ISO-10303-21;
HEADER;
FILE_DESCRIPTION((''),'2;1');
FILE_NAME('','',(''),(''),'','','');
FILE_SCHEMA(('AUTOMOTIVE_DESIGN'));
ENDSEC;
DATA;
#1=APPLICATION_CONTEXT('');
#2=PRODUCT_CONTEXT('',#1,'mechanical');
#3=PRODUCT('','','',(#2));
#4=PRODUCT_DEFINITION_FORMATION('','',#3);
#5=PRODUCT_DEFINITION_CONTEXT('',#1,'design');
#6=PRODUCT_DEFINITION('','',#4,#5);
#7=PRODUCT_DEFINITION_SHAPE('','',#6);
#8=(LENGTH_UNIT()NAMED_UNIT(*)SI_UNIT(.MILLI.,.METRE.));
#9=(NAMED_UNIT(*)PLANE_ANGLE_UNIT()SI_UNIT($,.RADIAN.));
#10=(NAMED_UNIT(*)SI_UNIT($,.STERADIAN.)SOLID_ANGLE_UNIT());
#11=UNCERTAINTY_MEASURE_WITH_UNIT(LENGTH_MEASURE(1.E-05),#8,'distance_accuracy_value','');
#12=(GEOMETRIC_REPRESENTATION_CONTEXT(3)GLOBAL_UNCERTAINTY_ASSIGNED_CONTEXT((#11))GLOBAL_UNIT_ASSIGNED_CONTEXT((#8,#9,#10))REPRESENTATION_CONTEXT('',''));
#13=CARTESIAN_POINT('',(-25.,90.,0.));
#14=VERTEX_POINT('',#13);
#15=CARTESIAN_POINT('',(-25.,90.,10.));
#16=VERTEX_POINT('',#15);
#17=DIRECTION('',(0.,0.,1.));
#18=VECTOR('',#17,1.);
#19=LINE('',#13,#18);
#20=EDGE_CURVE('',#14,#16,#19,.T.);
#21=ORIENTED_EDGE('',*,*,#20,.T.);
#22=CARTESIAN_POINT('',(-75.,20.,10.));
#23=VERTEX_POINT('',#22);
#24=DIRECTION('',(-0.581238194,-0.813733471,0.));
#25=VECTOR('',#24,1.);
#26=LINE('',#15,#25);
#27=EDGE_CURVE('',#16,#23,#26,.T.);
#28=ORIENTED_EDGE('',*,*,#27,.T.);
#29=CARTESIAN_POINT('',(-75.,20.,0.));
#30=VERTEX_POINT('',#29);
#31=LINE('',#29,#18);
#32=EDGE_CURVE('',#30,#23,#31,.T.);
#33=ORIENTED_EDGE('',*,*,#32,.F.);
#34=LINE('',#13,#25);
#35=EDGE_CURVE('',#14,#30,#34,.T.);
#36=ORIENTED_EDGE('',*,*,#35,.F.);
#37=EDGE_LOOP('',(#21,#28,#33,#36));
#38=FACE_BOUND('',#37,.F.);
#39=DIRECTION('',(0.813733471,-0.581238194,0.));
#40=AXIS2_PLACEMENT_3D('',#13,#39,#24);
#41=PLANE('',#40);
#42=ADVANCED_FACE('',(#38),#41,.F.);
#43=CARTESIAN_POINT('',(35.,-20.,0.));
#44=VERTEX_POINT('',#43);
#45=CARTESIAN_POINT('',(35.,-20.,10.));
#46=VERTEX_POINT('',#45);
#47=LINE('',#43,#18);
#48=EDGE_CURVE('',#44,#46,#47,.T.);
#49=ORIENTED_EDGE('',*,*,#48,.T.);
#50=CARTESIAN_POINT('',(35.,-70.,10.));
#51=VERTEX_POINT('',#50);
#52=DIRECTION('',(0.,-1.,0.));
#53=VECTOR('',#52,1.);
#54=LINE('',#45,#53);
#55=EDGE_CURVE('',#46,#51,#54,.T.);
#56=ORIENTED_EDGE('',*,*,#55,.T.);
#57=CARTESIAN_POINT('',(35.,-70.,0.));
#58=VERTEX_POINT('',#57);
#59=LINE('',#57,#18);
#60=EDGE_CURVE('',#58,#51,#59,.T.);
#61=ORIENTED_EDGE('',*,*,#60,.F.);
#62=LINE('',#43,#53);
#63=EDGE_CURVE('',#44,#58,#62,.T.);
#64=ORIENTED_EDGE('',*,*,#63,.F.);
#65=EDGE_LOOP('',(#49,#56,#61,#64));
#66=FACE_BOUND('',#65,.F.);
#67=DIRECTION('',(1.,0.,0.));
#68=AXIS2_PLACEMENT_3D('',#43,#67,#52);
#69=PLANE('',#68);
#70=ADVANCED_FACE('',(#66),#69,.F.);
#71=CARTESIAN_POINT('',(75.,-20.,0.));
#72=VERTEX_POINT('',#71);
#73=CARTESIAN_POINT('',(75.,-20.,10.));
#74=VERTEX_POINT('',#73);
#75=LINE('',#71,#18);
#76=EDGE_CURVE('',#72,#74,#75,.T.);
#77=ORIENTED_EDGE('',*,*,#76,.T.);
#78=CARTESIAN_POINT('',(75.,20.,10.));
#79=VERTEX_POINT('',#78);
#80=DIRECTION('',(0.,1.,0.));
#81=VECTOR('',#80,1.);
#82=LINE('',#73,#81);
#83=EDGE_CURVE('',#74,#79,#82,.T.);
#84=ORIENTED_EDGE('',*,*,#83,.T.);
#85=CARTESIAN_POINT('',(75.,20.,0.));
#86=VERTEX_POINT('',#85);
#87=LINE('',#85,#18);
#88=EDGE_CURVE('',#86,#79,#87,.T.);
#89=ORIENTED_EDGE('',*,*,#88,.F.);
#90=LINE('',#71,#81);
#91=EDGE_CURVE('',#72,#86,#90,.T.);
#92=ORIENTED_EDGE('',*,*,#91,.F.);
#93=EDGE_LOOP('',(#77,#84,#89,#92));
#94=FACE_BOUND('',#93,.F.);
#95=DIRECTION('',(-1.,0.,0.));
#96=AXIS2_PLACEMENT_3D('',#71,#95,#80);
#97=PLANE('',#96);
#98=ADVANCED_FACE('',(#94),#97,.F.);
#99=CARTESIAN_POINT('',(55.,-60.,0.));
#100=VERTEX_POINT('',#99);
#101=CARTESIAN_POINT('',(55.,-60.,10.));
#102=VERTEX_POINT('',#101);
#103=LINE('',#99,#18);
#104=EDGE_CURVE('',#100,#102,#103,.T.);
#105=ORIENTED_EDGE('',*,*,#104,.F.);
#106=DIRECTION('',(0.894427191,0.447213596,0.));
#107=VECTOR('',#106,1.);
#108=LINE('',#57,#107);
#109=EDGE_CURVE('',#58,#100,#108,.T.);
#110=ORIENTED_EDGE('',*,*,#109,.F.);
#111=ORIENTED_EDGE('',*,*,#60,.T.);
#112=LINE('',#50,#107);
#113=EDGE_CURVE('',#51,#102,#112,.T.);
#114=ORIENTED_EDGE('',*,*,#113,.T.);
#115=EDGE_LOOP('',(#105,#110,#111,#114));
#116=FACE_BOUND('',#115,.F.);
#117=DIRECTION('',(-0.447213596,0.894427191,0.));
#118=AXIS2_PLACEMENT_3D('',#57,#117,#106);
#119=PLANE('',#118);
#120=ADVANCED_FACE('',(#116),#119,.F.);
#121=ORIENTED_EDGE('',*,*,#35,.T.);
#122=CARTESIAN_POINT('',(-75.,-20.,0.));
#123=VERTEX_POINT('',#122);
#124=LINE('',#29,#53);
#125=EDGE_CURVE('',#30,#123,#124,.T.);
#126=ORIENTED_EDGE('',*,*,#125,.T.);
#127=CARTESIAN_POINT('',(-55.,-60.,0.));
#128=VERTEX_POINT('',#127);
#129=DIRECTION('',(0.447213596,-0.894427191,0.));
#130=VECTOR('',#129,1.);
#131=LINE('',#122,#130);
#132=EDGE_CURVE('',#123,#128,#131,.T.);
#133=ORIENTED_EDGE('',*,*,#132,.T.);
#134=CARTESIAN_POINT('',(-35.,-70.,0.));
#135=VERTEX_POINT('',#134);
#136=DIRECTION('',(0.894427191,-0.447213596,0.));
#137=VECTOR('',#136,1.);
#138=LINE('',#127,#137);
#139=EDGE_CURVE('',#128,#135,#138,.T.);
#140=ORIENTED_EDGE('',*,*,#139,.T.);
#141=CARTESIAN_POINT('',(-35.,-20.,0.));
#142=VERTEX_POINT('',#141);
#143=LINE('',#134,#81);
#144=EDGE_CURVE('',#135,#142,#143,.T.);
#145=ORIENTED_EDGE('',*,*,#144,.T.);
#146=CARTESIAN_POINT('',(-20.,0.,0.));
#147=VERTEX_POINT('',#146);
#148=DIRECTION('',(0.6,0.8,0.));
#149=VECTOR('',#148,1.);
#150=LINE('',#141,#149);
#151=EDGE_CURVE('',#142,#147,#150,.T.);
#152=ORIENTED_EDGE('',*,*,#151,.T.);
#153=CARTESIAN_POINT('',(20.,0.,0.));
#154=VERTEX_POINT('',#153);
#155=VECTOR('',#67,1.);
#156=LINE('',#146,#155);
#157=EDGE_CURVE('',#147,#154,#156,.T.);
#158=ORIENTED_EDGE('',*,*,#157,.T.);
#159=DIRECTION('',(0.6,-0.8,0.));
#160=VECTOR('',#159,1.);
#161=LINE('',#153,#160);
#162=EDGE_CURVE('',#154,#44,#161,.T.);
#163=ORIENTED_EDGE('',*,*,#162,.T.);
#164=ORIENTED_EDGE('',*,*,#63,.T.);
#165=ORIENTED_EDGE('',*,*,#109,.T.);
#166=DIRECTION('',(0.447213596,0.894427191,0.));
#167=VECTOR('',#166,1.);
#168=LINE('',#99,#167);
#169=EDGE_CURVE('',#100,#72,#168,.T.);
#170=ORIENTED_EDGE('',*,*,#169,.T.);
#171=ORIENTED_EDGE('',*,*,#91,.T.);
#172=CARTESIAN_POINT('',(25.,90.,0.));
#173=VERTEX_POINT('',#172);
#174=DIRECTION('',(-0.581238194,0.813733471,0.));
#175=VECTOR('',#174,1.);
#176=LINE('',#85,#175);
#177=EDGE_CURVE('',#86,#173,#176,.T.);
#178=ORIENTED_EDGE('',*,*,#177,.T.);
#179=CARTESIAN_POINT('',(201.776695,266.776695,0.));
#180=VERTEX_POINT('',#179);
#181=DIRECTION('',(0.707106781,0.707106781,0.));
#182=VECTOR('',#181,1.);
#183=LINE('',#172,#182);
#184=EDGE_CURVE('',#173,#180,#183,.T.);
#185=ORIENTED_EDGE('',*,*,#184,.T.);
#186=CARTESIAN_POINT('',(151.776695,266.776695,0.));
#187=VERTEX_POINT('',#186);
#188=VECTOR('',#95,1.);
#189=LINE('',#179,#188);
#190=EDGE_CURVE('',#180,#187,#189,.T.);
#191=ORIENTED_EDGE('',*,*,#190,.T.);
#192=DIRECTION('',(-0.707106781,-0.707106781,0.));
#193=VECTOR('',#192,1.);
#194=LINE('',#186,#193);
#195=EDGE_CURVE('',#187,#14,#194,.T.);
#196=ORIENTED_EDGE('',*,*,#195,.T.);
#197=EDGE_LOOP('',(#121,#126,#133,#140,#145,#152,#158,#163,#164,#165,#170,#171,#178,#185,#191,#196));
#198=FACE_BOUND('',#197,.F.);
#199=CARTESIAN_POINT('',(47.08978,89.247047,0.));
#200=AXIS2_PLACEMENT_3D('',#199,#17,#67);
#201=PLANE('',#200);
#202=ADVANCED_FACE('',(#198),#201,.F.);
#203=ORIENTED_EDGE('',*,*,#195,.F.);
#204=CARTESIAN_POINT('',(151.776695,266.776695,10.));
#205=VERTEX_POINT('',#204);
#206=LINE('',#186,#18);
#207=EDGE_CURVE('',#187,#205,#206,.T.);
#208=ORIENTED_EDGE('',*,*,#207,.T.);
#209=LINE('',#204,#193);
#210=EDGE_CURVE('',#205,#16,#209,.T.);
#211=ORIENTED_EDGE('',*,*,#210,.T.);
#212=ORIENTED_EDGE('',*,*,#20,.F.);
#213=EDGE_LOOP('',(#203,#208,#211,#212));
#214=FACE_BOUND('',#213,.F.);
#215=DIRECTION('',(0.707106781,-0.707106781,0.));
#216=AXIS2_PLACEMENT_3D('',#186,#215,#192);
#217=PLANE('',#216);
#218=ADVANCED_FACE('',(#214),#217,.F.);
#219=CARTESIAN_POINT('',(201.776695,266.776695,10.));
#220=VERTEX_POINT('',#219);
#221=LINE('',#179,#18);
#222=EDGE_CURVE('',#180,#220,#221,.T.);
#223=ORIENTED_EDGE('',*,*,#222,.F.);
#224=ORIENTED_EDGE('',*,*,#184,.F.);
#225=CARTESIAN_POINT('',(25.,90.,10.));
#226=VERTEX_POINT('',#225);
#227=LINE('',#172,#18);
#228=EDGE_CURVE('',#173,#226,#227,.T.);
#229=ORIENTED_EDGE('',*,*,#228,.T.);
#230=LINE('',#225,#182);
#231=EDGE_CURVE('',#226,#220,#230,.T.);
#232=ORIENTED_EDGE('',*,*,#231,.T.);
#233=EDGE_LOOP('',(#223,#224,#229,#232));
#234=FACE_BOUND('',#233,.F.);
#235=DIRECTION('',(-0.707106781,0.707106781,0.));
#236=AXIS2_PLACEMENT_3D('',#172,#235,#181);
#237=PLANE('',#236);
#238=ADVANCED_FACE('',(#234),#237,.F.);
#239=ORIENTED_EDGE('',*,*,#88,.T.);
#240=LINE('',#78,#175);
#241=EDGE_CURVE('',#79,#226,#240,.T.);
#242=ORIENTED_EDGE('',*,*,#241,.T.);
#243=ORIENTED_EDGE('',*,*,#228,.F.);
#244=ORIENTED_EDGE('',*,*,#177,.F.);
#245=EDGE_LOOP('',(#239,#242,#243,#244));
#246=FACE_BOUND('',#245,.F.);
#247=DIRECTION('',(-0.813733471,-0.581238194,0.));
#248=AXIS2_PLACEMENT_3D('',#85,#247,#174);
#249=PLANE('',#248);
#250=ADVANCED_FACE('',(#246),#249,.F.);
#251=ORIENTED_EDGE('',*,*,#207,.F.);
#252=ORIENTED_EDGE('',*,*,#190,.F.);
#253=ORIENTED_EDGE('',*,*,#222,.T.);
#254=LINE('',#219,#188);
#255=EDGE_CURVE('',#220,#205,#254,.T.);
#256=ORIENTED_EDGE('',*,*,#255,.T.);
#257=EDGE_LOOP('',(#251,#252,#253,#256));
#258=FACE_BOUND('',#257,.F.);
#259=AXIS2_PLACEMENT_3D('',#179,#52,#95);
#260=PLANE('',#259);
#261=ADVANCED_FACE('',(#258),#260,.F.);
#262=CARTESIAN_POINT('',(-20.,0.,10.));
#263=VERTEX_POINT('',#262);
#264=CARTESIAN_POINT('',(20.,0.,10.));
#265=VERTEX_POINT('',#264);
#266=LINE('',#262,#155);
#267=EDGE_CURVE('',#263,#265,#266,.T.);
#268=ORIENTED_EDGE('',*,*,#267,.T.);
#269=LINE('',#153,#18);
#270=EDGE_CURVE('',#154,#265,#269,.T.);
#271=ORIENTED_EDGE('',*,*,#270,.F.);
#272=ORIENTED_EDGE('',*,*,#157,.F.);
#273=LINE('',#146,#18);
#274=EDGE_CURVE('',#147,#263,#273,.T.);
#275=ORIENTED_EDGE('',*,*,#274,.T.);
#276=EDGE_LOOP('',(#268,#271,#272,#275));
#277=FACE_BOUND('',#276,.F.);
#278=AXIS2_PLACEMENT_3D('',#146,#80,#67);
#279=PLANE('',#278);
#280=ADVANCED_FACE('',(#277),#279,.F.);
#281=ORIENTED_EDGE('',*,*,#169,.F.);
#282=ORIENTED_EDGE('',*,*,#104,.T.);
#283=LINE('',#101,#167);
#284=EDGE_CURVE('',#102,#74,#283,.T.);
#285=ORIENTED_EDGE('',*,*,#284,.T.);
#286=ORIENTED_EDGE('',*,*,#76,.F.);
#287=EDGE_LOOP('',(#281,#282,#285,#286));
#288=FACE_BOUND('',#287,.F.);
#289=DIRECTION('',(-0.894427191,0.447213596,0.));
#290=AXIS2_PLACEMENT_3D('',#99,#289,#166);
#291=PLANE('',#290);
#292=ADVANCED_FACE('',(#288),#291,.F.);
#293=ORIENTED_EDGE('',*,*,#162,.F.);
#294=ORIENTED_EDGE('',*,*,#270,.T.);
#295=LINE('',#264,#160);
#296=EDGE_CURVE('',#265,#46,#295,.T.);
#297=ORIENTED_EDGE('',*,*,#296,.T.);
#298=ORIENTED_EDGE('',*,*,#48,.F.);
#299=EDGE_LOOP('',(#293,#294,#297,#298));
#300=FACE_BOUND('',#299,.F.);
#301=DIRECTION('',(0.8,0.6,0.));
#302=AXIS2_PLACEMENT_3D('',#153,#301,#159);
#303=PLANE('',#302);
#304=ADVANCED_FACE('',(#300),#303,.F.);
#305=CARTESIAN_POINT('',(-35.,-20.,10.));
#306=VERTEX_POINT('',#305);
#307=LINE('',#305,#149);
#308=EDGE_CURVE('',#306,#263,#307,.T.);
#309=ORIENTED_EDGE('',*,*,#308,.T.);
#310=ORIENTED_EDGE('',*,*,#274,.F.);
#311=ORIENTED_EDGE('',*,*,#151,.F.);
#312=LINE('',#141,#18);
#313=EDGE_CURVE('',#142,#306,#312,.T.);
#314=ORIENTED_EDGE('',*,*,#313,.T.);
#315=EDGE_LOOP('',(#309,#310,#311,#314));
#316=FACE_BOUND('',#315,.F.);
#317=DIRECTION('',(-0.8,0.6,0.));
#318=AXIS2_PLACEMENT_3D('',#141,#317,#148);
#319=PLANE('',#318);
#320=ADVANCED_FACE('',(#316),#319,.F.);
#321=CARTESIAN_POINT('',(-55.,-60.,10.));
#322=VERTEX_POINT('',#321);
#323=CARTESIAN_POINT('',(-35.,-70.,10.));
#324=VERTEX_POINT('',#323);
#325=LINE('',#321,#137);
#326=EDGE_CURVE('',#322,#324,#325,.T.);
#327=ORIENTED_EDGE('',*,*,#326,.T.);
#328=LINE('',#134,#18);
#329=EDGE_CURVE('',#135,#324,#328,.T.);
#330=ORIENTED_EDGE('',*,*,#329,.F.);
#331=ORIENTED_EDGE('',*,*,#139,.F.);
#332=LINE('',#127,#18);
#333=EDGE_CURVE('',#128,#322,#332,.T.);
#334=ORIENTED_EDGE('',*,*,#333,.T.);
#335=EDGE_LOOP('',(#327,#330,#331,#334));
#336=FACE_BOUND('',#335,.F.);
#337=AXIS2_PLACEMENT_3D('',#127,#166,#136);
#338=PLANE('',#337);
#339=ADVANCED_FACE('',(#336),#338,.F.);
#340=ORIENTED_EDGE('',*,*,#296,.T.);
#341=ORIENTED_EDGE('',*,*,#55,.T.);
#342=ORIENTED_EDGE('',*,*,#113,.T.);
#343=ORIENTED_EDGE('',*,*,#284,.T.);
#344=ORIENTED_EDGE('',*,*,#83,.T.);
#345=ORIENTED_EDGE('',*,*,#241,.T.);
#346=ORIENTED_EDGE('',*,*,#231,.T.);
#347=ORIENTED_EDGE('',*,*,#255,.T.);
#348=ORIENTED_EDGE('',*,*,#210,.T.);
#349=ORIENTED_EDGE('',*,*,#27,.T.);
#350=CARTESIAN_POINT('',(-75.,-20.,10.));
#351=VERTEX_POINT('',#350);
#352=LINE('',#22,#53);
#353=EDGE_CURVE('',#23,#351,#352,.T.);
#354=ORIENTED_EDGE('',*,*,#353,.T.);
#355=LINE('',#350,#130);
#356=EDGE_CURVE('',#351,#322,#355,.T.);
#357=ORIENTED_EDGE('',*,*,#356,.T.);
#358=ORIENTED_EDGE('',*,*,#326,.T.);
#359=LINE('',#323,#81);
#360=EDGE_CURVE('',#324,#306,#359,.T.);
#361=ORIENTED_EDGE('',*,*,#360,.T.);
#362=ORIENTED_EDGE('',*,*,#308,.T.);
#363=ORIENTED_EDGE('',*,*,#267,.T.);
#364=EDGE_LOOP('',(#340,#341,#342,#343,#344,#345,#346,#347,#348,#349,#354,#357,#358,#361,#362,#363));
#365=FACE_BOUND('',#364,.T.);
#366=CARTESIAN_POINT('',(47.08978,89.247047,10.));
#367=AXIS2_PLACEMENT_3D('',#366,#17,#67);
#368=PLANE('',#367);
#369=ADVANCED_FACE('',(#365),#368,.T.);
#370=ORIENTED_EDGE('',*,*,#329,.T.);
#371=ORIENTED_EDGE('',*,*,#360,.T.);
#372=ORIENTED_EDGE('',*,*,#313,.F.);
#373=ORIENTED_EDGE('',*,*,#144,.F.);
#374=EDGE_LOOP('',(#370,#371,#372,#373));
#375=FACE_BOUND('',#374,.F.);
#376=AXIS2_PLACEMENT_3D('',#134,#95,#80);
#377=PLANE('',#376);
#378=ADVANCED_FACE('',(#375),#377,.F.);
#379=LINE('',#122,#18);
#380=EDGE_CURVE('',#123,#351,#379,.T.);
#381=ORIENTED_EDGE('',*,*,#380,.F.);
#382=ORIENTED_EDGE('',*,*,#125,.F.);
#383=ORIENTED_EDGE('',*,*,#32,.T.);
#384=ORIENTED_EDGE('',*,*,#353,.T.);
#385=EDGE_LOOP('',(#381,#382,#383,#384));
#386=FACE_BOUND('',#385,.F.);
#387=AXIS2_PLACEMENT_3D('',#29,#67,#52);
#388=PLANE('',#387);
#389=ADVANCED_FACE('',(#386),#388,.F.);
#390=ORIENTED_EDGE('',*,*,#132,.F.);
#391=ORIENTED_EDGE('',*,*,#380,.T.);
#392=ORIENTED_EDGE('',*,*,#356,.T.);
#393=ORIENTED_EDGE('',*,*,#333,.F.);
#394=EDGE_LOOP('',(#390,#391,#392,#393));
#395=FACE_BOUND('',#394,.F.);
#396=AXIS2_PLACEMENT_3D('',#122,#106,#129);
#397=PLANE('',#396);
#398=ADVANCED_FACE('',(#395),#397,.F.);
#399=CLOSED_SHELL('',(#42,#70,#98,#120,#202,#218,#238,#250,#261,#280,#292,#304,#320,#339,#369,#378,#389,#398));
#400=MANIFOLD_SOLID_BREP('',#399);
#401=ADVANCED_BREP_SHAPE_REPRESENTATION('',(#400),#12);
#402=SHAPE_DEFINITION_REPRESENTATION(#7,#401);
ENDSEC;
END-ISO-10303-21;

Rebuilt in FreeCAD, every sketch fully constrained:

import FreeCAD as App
import Part
import Sketcher
from FreeCAD import Vector
Q = App.Units.Quantity


def add_polygon(sketch, points):
    """Adds a closed chain of lines whose ends are joined by coincident constraints."""
    first, n = sketch.GeometryCount, len(points)
    for a, b in zip(points, points[1:] + points[:1]):
        sketch.addGeometry(Part.LineSegment(App.Vector(*a, 0), App.Vector(*b, 0)), False)
    for i in range(n):
        sketch.addConstraint(Sketcher.Constraint("Coincident", first + i, 2, first + (i + 1) % n, 1))

doc = App.newDocument("Part")
params = doc.addObject("Spreadsheet::Sheet", "Params")
for row, (alias, value) in enumerate([
    ("sketch1_width", "40 mm"),
    ("sketch1_width2", "50 mm"),
    ("sketch1_length", "25 mm"),
    ("sketch1_length2", "250 mm"),
    ("pad1_length", "10 mm"),
], start=1):
    params.set(f"A{row}", alias)
    params.set(f"B{row}", "=" + value)
    params.setAlias(f"B{row}", alias)

body = doc.addObject("PartDesign::Body", "Body")

# Sketch on XY plane
sketch1 = body.newObject("Sketcher::SketchObject", "Sketch")
sketch1.AttachmentSupport = (doc.getObject("XY_Plane"), [""])
sketch1.MapMode = "FlatFace"
add_polygon(sketch1, [(-35, -20), (-20, 0), (20, 0), (35, -20), (35, -70), (55, -60), (75, -20), (75, 20), (25, 90), (202, 267), (152, 267), (-25, 90), (-75, 20), (-75, -20), (-55, -60), (-35, -70)])  # lines 0-15
sketch1.addConstraint([
    Sketcher.Constraint("Horizontal", 1),
    Sketcher.Constraint("Vertical", 3),
    Sketcher.Constraint("Vertical", 6),
    Sketcher.Constraint("Horizontal", 9),
    Sketcher.Constraint("Vertical", 12),
    Sketcher.Constraint("Vertical", 15),
    Sketcher.Constraint("Symmetric", 0, 2, 1, 2, -1, 1),
    Sketcher.Constraint("Symmetric", 5, 2, 11, 2, -1, 1),
    Sketcher.Constraint("Symmetric", 7, 2, 10, 2, -2),
    Sketcher.Constraint("Symmetric", 4, 2, 13, 2, -2),
    Sketcher.Constraint("Symmetric", 3, 2, 14, 2, -2),
    Sketcher.Constraint("Parallel", 8, 10),
    Sketcher.Constraint("Perpendicular", 4, 13),
    Sketcher.Constraint("Perpendicular", 5, 14),
    Sketcher.Constraint("Horizontal", 2, 2, 5, 2),
    Sketcher.Constraint("Horizontal", 6, 2, 11, 2),
    Sketcher.Constraint("Horizontal", 12, 2, 15, 2),
    Sketcher.Constraint("Equal", 9, 3),
    Sketcher.Constraint("Equal", 1, 6),
    Sketcher.Constraint("DistanceX", 1, 1, 1, 2, Q("40 mm")),
    Sketcher.Constraint("DistanceX", 9, 2, 9, 1, Q("50 mm")),
    Sketcher.Constraint("Angle", 8, Q("45 deg")),
    Sketcher.Constraint("Distance", 0, Q("25 mm")),
    Sketcher.Constraint("Distance", 8, Q("250 mm")),
    Sketcher.Constraint("DistanceX", -1, 1, 4, 2, Q("55 mm")),
    Sketcher.Constraint("DistanceY", 4, 2, -1, 1, Q("60 mm")),
    Sketcher.Constraint("DistanceY", -1, 1, 7, 2, Q("90 mm")),
])
sketch1.setExpression("Constraints[35]", "Params.sketch1_width")
sketch1.setExpression("Constraints[36]", "Params.sketch1_width2")
sketch1.setExpression("Constraints[38]", "Params.sketch1_length")
sketch1.setExpression("Constraints[39]", "Params.sketch1_length2")
pad1 = body.newObject("PartDesign::Pad", "Pad")
pad1.Profile = sketch1
pad1.setExpression("Length", "Params.pad1_length")

doc.recompute()
